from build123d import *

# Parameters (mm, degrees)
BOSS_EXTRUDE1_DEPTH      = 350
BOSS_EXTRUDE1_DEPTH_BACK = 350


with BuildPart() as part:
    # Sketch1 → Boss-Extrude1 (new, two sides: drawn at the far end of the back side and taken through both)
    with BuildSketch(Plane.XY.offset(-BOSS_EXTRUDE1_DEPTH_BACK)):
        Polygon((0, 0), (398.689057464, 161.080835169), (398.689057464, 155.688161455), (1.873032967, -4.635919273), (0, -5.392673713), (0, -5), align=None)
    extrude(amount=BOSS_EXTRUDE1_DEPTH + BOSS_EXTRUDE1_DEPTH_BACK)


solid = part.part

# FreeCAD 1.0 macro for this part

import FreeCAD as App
import Part
import Sketcher

V = App.Vector
Q = App.Units.Quantity


def add_polygon(sketch, points):
    """Adds a closed chain of lines whose ends are joined by coincident constraints."""
    first, n = sketch.GeometryCount, len(points)
    for a, b in zip(points, points[1:] + points[:1]):
        sketch.addGeometry(Part.LineSegment(App.Vector(*a, 0), App.Vector(*b, 0)), False)
    for i in range(n):
        sketch.addConstraint(Sketcher.Constraint("Coincident", first + i, 2, first + (i + 1) % n, 1))

doc = App.newDocument("Part")
body = doc.addObject("PartDesign::Body", "Body")

# Sketch on XY plane
sketch1 = doc.addObject("Sketcher::SketchObject", "Sketch")
body.addObject(sketch1)
sketch1.AttachmentSupport = (doc.XY_Plane, [""])
sketch1.MapMode = "FlatFace"
add_polygon(sketch1, [(398.689057, 161.080835), (0, 0), (0, -5.392674), (1.873033, -4.635919), (398.689057, 155.688161)])  # lines 0-4
sketch1.addConstraint(Sketcher.Constraint("Vertical", 1))
sketch1.addConstraint(Sketcher.Constraint("Vertical", 4))
sketch1.addConstraint(Sketcher.Constraint("Coincident", 0, 2, -1, 1))
sketch1.addConstraint(Sketcher.Constraint("Parallel", 0, 2))
sketch1.addConstraint(Sketcher.Constraint("Parallel", 2, 3))
sketch1.addConstraint(Sketcher.Constraint("Angle", 0, Q("-158 deg")))
sketch1.addConstraint(Sketcher.Constraint("Distance", 0, Q("430 mm")))
sketch1.addConstraint(Sketcher.Constraint("Distance", 2, Q("2.020131 mm")))
sketch1.addConstraint(Sketcher.Constraint("DistanceY", 1, 2, 1, 1, Q("5.392674 mm")))
pad1 = doc.addObject("PartDesign::Pad", "Pad")
body.addObject(pad1)
pad1.Profile = sketch1
pad1.Type = "TwoLengths"
pad1.Length = 350
pad1.Length2 = 350

doc.recompute()
